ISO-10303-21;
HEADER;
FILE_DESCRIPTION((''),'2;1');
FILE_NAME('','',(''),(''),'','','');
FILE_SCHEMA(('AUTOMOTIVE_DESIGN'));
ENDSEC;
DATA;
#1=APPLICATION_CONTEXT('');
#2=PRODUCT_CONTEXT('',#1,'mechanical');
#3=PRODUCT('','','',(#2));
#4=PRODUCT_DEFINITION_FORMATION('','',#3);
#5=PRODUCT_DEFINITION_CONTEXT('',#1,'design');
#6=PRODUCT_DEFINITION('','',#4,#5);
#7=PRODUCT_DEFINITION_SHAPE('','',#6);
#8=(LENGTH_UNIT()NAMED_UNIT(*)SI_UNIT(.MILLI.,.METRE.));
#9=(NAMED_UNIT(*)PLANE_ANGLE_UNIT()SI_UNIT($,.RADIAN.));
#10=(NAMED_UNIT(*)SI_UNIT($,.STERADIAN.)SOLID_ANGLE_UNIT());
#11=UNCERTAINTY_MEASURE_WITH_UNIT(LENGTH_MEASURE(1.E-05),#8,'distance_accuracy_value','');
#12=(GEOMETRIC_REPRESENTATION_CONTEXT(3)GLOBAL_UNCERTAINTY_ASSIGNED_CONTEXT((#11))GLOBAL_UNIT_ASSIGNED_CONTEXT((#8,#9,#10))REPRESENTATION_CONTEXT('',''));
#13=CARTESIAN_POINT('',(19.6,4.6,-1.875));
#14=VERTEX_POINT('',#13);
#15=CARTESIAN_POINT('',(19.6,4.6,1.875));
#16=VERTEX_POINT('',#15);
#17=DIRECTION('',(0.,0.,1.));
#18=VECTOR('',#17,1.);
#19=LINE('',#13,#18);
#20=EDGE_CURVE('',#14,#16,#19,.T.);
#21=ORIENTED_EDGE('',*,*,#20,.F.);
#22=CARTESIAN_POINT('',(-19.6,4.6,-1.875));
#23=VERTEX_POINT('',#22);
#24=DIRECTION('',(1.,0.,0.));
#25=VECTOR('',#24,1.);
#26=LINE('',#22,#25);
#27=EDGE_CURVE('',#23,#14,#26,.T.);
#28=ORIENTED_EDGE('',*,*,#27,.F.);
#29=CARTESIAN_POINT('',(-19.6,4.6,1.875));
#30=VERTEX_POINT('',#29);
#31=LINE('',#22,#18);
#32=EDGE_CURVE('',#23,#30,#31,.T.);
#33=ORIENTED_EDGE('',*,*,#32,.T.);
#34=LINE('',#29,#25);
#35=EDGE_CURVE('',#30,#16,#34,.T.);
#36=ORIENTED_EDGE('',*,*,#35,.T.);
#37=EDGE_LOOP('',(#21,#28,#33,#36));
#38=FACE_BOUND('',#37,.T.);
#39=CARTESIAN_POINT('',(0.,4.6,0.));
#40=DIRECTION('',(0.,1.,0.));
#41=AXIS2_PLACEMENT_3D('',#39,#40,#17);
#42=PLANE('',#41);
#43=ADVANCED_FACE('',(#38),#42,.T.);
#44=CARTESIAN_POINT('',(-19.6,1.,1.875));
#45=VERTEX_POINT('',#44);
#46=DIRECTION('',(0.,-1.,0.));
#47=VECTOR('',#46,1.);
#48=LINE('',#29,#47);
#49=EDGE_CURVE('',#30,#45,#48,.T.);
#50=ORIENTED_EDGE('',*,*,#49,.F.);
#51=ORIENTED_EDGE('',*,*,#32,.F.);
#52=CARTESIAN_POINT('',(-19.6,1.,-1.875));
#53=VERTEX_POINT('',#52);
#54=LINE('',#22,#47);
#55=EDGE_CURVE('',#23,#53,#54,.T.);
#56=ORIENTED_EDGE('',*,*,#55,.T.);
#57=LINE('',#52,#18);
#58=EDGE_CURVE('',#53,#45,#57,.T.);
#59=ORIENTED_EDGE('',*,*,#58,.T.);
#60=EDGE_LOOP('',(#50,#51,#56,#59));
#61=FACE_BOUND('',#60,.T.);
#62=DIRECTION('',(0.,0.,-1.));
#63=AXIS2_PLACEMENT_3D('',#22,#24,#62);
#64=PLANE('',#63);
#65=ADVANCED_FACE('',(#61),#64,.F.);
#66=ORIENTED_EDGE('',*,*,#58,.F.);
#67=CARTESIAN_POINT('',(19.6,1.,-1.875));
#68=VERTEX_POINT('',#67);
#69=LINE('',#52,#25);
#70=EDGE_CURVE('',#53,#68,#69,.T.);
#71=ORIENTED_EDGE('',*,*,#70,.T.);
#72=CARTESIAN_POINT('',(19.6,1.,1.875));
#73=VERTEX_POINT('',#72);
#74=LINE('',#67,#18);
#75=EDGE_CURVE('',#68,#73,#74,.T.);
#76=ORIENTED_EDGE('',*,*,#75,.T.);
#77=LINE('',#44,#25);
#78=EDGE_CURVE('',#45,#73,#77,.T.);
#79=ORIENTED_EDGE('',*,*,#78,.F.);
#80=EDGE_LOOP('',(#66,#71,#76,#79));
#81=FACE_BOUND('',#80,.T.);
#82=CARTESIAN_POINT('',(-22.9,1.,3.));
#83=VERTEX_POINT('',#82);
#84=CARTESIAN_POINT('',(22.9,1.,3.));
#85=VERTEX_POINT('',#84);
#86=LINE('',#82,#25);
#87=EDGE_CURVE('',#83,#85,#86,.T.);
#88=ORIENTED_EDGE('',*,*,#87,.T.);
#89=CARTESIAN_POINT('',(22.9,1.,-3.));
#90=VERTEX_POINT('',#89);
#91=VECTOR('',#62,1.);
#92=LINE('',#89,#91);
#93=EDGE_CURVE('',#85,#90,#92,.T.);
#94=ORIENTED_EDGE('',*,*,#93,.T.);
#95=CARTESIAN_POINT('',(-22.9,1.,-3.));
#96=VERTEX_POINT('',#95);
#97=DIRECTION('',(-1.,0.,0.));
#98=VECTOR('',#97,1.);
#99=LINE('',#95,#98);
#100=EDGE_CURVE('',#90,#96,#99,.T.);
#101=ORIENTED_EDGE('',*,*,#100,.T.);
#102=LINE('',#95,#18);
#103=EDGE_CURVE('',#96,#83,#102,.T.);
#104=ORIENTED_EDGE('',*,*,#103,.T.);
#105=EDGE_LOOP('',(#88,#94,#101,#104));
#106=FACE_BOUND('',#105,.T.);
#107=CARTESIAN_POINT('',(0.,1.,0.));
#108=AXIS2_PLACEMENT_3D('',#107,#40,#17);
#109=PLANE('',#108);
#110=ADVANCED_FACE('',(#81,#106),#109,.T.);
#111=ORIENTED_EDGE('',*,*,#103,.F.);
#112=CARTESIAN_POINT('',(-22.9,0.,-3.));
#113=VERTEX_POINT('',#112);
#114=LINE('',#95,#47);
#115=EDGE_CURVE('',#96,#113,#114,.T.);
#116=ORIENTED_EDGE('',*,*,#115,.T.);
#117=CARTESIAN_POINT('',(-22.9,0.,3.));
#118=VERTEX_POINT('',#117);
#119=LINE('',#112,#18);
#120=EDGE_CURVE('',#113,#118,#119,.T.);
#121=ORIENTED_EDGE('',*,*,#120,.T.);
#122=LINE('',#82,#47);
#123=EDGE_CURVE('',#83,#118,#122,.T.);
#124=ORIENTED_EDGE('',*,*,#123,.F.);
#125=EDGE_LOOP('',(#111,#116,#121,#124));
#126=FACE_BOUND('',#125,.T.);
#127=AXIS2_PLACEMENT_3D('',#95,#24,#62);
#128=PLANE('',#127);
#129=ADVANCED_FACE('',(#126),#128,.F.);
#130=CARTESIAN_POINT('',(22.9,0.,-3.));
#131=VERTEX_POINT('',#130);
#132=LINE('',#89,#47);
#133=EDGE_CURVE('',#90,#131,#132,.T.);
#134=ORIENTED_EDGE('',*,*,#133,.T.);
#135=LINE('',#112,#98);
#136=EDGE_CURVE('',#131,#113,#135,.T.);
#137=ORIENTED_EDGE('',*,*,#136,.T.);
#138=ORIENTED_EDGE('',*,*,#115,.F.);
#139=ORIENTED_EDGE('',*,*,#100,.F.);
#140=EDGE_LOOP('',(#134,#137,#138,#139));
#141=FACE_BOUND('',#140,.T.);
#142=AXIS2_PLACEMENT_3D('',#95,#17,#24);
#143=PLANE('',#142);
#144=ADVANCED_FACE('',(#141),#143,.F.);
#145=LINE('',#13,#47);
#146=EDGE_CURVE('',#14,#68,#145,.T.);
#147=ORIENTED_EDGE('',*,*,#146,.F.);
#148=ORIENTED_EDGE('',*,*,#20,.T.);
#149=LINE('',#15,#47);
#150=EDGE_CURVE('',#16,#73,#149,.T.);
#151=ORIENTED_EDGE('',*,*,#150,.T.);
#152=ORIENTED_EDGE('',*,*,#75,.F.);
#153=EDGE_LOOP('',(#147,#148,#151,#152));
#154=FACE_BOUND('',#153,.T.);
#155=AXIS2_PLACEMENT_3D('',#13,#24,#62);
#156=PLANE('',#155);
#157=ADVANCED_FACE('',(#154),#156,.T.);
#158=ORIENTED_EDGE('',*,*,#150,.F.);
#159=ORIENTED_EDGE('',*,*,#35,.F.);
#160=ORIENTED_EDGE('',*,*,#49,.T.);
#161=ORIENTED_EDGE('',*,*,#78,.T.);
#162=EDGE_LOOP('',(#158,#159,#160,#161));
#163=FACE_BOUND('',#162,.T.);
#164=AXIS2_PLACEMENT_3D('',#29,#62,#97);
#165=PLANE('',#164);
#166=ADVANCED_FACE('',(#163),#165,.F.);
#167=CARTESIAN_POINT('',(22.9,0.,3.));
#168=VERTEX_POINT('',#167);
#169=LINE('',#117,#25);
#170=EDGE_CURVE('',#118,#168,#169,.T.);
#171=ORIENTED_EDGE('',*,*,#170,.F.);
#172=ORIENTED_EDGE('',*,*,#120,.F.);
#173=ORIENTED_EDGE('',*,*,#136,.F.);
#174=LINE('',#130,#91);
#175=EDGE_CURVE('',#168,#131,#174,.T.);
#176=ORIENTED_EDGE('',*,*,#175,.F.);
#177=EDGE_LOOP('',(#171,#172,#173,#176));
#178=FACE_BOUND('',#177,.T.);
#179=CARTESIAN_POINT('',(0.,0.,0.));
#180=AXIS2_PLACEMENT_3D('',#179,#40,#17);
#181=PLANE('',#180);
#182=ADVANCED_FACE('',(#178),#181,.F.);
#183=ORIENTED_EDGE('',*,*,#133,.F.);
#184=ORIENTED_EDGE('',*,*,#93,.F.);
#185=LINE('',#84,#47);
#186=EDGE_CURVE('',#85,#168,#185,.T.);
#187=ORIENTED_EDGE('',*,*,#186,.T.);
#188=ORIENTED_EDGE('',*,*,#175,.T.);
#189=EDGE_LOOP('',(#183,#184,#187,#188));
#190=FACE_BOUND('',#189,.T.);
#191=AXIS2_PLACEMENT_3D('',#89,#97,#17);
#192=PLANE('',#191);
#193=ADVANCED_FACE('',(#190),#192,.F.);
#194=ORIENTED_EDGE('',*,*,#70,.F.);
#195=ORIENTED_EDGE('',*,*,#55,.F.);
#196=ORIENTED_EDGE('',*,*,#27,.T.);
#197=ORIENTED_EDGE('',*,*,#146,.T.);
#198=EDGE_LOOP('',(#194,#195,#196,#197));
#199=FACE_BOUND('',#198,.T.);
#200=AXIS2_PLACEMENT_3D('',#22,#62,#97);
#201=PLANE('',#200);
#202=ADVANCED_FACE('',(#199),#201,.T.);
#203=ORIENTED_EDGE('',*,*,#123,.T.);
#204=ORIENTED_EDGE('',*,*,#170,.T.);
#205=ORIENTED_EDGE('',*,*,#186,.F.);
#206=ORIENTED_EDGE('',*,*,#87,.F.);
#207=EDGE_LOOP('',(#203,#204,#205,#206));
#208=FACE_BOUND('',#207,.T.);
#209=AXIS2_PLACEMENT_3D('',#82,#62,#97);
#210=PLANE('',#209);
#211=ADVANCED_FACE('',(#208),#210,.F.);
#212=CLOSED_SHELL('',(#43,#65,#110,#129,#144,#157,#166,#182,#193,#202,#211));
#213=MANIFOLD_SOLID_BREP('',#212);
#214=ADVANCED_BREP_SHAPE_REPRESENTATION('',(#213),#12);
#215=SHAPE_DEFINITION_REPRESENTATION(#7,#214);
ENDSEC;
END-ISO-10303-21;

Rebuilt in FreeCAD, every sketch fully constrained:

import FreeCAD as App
import Part
import Sketcher

V = App.Vector


def add_polygon(sketch, points):
    """Adds a closed chain of lines whose ends are joined by coincident constraints."""
    first, n = sketch.GeometryCount, len(points)
    for a, b in zip(points, points[1:] + points[:1]):
        sketch.addGeometry(Part.LineSegment(App.Vector(*a, 0), App.Vector(*b, 0)), False)
    for i in range(n):
        sketch.addConstraint(Sketcher.Constraint("Coincident", first + i, 2, first + (i + 1) % n, 1))

doc = App.newDocument("Part")
params = doc.addObject("Spreadsheet::Sheet", "Params")
for row, (alias, value) in enumerate([
    ("sketch1_height", "6 mm"),
    ("sketch1_width", "45.8 mm"),
    ("pad1_length", "1 mm"),
    ("sketch2_width", "39.2 mm"),
    ("sketch2_height", "3.75 mm"),
    ("pad2_length", "3.6 mm"),
], start=1):
    params.set(f"A{row}", alias)
    params.set(f"B{row}", "=" + value)
    params.setAlias(f"B{row}", alias)

body = doc.addObject("PartDesign::Body", "Body")

sketch1 = doc.addObject("Sketcher::SketchObject", "Sketch")
body.addObject(sketch1)
sketch1.AttachmentSupport = (doc.XZ_Plane, [""])
sketch1.MapMode = "FlatFace"
add_polygon(sketch1, [(-23, -3), (-23, 3), (23, 3), (23, -3)])
sketch1.addConstraint([
    Sketcher.Constraint("Vertical", 0),
    Sketcher.Constraint("Horizontal", 1),
    Sketcher.Constraint("Vertical", 2),
    Sketcher.Constraint("Horizontal", 3),
    Sketcher.Constraint("Symmetric", 0, 2, 2, 2, -1, 1),
    Sketcher.Constraint("DistanceY", 0, 1, 0, 2, 6.0),
    Sketcher.Constraint("DistanceX", 1, 1, 1, 2, 45.8),
])
sketch1.setExpression("Constraints[9]", "Params.sketch1_height")
sketch1.setExpression("Constraints[10]", "Params.sketch1_width")
pad1 = doc.addObject("PartDesign::Pad", "Pad")
body.addObject(pad1)
pad1.Profile = sketch1
pad1.setExpression("Length", "Params.pad1_length")
pad1.Reversed = True

sketch2 = doc.addObject("Sketcher::SketchObject", "Sketch001")
body.addObject(sketch2)
sketch2.AttachmentSupport = (doc.XZ_Plane, [""])
sketch2.MapMode = "FlatFace"
sketch2.AttachmentOffset = App.Placement(V(0, 0, -1), App.Rotation())
add_polygon(sketch2, [(-19.6, -1.9), (-19.6, 1.9), (19.6, 1.9), (19.6, -1.9)])
sketch2.addConstraint([
    Sketcher.Constraint("Vertical", 0),
    Sketcher.Constraint("Horizontal", 1),
    Sketcher.Constraint("Vertical", 2),
    Sketcher.Constraint("Horizontal", 3),
    Sketcher.Constraint("Symmetric", 0, 2, 2, 2, -1, 1),
    Sketcher.Constraint("DistanceX", 1, 1, 1, 2, 39.2),
    Sketcher.Constraint("DistanceY", 0, 1, 0, 2, 3.75),
])
sketch2.setExpression("Constraints[9]", "Params.sketch2_width")
sketch2.setExpression("Constraints[10]", "Params.sketch2_height")
pad2 = doc.addObject("PartDesign::Pad", "Pad001")
body.addObject(pad2)
pad2.Profile = sketch2
pad2.setExpression("Length", "Params.pad2_length")
pad2.Reversed = True

doc.recompute()
